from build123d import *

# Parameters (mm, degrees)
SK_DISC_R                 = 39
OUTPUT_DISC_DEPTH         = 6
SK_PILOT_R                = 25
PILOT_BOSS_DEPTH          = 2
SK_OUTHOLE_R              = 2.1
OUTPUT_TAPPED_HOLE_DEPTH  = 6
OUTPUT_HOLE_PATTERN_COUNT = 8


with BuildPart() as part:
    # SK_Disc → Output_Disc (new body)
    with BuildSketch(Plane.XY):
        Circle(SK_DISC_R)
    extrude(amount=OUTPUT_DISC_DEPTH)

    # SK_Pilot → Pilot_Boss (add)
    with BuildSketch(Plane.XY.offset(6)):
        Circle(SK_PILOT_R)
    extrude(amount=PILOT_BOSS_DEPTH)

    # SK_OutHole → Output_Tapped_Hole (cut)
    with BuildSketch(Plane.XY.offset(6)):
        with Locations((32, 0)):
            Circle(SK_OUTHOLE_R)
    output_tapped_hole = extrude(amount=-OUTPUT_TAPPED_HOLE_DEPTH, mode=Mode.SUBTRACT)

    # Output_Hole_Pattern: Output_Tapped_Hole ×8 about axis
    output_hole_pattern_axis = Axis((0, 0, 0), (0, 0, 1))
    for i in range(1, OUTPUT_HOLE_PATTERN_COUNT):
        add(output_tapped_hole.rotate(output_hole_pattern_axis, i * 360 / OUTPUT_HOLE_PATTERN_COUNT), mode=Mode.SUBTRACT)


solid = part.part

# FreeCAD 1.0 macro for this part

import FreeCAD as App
import Part
import Sketcher
Q = App.Units.Quantity

doc = App.newDocument("Part")
body = doc.addObject("PartDesign::Body", "Body")

# Sketch on XY plane
sketch1 = body.newObject("Sketcher::SketchObject", "Sketch")
sketch1.AttachmentSupport = (doc.getObject("XY_Plane"), [""])
sketch1.MapMode = "FlatFace"
sketch1.addGeometry(Part.Circle(App.Vector(0, 0, 0), App.Vector(0, 0, 1), 39), False)
sketch1.addConstraint(Sketcher.Constraint("Coincident", 0, 3, -1, 1))
sketch1.addConstraint(Sketcher.Constraint("Diameter", 0, Q("78 mm")))
pad1 = body.newObject("PartDesign::Pad", "Pad")
pad1.Profile = sketch1
pad1.Length = 6

# Sketch on XY plane
sketch2 = body.newObject("Sketcher::SketchObject", "Sketch001")
sketch2.AttachmentSupport = (doc.getObject("XY_Plane"), [""])
sketch2.MapMode = "FlatFace"
sketch2.AttachmentOffset = App.Placement(App.Vector(0, 0, 6), App.Rotation())
sketch2.addGeometry(Part.Circle(App.Vector(0, 0, 0), App.Vector(0, 0, 1), 25), False)
sketch2.addConstraint(Sketcher.Constraint("Coincident", 0, 3, -1, 1))
sketch2.addConstraint(Sketcher.Constraint("Diameter", 0, Q("50 mm")))
pad2 = body.newObject("PartDesign::Pad", "Pad001")
pad2.Profile = sketch2
pad2.Length = 2

# Sketch on XY plane
sketch3 = body.newObject("Sketcher::SketchObject", "Sketch002")
sketch3.AttachmentSupport = (doc.getObject("XY_Plane"), [""])
sketch3.MapMode = "FlatFace"
sketch3.AttachmentOffset = App.Placement(App.Vector(0, 0, 6), App.Rotation())
sketch3.addGeometry(Part.Circle(App.Vector(32, 0, 0), App.Vector(0, 0, 1), 2.1), False)
sketch3.addConstraint(Sketcher.Constraint("PointOnObject", 0, 3, -1))
sketch3.addConstraint(Sketcher.Constraint("Diameter", 0, Q("4.2 mm")))
sketch3.addConstraint(Sketcher.Constraint("DistanceX", -1, 1, 0, 3, Q("32 mm")))
pocket1 = body.newObject("PartDesign::Pocket", "Pocket")
pocket1.Profile = sketch3
pocket1.Length = 6
doc.recompute()

polarpattern = body.newObject("PartDesign::PolarPattern", "PolarPattern")
polarpattern.Originals = [pocket1]
polarpattern.Axis = (doc.getObject("Z_Axis"), [""])
polarpattern.Angle = 360
polarpattern.Occurrences = 8
body.Tip = polarpattern

doc.recompute()
